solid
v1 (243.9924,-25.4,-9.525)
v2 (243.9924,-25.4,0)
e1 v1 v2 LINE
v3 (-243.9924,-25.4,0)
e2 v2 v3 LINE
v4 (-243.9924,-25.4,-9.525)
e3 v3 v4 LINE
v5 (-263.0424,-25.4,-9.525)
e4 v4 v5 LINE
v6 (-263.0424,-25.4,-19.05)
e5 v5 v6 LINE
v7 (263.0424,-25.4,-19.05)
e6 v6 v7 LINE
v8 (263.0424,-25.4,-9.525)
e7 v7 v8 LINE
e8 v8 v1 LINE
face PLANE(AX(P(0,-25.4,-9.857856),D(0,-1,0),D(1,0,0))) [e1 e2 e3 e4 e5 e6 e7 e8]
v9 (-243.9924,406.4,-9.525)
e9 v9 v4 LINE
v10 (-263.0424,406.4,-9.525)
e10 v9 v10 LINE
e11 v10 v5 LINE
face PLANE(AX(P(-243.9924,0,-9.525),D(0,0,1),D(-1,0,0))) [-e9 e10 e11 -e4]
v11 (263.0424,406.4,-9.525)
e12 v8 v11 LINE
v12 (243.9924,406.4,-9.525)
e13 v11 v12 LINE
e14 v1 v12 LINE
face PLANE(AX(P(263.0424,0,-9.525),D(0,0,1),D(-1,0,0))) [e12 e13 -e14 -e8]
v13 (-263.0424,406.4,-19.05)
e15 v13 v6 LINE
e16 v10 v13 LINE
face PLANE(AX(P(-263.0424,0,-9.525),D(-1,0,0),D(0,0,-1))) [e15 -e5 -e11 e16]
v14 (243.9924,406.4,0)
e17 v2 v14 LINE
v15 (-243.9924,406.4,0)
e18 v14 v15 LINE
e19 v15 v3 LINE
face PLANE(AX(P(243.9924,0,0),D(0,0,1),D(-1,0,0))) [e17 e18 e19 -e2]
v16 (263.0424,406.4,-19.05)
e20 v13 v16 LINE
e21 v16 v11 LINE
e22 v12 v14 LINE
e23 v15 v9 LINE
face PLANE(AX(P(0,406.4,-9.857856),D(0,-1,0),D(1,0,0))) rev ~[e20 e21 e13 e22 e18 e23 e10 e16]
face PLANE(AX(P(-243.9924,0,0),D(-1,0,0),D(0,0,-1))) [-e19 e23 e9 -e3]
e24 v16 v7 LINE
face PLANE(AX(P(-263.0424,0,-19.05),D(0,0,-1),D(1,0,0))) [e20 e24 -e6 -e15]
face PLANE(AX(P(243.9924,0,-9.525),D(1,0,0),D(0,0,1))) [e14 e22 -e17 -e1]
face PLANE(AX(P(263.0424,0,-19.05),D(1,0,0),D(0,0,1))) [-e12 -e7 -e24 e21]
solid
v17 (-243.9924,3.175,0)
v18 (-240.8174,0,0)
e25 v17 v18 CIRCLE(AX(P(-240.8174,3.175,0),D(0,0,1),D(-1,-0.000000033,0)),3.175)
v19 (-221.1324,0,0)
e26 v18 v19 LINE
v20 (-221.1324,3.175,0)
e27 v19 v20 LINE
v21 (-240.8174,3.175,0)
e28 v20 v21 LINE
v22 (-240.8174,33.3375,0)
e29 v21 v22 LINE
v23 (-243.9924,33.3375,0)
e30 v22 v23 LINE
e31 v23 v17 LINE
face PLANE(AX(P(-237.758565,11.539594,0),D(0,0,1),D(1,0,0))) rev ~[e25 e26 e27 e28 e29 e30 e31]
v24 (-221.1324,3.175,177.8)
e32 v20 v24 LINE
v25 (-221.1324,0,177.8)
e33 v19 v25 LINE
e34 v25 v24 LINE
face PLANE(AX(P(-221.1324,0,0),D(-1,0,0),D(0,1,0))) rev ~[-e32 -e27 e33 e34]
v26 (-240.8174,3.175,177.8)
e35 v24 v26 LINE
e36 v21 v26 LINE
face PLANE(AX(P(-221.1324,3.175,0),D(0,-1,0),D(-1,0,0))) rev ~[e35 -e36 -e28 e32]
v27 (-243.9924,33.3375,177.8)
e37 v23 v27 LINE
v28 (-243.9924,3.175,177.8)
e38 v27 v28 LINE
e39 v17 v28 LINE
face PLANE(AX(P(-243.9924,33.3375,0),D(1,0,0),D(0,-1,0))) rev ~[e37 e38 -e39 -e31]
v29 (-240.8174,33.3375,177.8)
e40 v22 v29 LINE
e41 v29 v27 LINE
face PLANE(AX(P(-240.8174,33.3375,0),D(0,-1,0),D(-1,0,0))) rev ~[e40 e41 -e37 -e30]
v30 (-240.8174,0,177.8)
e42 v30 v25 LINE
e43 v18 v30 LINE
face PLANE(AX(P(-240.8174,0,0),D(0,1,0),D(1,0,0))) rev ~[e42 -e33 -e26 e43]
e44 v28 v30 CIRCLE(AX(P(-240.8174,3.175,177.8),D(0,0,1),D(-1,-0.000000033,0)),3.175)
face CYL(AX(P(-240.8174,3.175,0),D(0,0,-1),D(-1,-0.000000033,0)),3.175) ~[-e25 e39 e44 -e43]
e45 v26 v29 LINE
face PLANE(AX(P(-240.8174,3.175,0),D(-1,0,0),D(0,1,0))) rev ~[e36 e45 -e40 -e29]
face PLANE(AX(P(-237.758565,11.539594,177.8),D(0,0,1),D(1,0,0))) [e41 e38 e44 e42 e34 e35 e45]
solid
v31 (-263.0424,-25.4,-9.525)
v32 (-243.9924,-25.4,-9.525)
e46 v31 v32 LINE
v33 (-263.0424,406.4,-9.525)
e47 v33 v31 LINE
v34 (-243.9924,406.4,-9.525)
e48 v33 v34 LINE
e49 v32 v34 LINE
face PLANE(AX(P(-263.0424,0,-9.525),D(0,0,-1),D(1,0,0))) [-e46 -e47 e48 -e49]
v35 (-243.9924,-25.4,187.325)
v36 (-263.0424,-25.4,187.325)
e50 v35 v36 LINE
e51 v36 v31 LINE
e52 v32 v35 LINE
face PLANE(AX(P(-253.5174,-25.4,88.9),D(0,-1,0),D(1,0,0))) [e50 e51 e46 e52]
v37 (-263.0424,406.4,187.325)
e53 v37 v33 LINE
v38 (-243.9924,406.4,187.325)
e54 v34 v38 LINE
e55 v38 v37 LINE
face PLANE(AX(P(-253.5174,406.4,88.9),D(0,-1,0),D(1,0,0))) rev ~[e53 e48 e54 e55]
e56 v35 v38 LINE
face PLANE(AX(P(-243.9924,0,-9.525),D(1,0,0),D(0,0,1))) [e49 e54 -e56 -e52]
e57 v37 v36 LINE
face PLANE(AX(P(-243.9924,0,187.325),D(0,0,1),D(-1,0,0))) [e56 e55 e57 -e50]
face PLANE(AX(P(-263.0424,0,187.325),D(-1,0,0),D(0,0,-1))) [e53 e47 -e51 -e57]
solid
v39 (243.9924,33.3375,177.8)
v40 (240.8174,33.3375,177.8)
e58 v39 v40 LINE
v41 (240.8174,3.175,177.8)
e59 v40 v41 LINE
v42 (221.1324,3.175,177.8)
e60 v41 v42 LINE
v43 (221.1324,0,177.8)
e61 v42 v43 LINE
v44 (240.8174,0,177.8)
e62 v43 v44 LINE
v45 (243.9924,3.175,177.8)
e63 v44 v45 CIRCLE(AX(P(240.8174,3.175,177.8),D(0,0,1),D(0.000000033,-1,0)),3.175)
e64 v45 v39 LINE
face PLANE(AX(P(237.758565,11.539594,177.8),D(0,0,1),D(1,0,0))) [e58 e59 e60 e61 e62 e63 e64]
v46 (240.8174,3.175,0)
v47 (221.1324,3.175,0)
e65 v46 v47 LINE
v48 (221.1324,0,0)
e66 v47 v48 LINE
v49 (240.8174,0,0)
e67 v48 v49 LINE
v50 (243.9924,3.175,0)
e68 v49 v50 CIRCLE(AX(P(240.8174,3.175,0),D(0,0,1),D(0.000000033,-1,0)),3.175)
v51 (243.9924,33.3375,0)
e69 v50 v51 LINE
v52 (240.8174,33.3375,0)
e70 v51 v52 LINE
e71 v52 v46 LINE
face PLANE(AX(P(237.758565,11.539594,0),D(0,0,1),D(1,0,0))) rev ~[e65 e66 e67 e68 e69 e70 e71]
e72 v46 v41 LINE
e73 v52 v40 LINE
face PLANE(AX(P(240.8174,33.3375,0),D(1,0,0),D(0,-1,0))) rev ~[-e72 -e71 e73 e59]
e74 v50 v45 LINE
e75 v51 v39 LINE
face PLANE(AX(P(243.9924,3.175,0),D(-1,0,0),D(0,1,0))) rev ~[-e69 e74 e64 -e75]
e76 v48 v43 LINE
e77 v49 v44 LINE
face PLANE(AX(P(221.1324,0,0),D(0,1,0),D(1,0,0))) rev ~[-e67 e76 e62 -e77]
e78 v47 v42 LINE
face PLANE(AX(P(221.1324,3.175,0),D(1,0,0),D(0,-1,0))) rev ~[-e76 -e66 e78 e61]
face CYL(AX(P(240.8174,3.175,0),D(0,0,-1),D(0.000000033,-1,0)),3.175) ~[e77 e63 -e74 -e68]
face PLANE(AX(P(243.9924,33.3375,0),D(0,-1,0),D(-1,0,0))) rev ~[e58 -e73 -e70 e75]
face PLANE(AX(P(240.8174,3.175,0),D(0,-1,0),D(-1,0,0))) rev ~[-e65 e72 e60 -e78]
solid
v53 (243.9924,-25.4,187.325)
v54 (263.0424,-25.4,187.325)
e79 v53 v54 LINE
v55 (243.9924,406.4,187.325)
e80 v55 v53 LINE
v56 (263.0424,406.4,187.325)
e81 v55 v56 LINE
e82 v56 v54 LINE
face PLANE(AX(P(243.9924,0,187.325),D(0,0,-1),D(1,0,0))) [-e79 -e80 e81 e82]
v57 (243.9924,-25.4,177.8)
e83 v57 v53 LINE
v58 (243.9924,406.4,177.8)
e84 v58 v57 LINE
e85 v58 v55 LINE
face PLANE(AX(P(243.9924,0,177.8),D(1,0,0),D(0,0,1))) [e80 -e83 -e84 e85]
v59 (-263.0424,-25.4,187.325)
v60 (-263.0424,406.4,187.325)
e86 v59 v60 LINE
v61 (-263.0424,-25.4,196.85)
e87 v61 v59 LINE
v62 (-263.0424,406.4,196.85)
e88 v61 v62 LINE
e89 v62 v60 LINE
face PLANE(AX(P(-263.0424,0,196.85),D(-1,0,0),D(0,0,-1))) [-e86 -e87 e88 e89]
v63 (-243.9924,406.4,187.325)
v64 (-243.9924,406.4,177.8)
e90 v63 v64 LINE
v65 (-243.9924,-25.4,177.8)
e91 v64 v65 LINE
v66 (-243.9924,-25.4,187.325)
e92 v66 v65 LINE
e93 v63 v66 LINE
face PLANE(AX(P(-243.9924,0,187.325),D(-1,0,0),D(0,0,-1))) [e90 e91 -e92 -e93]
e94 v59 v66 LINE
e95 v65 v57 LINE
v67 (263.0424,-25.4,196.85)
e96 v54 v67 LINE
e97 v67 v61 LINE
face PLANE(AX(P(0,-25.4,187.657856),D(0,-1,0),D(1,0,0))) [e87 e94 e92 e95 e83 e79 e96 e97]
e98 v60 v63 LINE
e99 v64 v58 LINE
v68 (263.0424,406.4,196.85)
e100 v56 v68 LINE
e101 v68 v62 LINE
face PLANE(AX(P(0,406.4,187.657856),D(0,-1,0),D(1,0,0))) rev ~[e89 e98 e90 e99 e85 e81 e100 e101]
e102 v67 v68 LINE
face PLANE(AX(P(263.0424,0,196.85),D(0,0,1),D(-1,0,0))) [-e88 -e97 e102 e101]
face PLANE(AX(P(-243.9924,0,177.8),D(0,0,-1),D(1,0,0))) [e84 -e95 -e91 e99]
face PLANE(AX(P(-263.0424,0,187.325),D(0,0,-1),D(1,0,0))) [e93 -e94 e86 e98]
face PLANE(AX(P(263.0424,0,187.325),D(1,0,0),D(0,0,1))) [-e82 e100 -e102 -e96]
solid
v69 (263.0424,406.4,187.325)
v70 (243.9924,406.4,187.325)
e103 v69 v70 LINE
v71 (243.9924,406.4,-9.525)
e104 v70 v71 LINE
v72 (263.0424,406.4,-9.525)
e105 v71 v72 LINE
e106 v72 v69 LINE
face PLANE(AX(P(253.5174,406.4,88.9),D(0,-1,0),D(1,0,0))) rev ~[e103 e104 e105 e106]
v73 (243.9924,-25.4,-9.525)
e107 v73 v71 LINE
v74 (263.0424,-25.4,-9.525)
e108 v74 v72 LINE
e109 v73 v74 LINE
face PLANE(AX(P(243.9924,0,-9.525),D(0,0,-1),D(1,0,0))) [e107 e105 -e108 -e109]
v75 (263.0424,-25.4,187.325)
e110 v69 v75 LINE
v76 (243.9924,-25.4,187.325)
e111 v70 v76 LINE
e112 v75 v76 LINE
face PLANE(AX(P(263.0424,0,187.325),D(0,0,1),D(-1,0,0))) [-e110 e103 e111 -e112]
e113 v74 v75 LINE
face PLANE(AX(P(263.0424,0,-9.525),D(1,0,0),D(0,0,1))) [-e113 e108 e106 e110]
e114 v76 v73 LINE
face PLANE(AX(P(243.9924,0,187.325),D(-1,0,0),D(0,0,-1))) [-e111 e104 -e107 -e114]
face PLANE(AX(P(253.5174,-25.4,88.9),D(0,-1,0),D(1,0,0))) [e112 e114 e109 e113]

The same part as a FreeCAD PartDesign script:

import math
import FreeCAD as App
import Part
import Sketcher
from FreeCAD import Vector
Q = App.Units.Quantity


def add_polygon(sketch, points):
    """Adds a closed chain of lines whose ends are joined by coincident constraints."""
    first, n = sketch.GeometryCount, len(points)
    for a, b in zip(points, points[1:] + points[:1]):
        sketch.addGeometry(Part.LineSegment(App.Vector(*a, 0), App.Vector(*b, 0)), False)
    for i in range(n):
        sketch.addConstraint(Sketcher.Constraint("Coincident", first + i, 2, first + (i + 1) % n, 1))

doc = App.newDocument("Part")
body = doc.addObject("PartDesign::Body", "Body")
body.AllowCompound = True

sketch1 = body.newObject("Sketcher::SketchObject", "Sketch")
sketch1.AttachmentSupport = (doc.getObject("XY_Plane"), [""])
sketch1.MapMode = "FlatFace"
sketch1.addGeometry([
    Part.LineSegment(Vector(-244, 33.3, 0), Vector(-244, 3.2, 0)),
    Part.ArcOfCircle(Part.Circle(Vector(-240.8, 3.2, 0), Vector(0, 0, 1), 3.2), math.radians(-180), math.radians(-90)),
    Part.LineSegment(Vector(-240.8, 0, 0), Vector(-221.1, 0, 0)),
    Part.LineSegment(Vector(-221.1, 0, 0), Vector(-221.1, 3.2, 0)),
    Part.LineSegment(Vector(-221.1, 3.2, 0), Vector(-240.8, 3.2, 0)),
    Part.LineSegment(Vector(-240.8, 3.2, 0), Vector(-240.8, 33.3, 0)),
    Part.LineSegment(Vector(-240.8, 33.3, 0), Vector(-244, 33.3, 0)),
    Part.ArcOfCircle(Part.Circle(Vector(240.8, 3.2, 0), Vector(0, 0, 1), 3.2), math.radians(-90), math.radians(0)),
    Part.LineSegment(Vector(244, 3.2, 0), Vector(244, 33.3, 0)),
    Part.LineSegment(Vector(244, 33.3, 0), Vector(240.8, 33.3, 0)),
    Part.LineSegment(Vector(240.8, 33.3, 0), Vector(240.8, 3.2, 0)),
    Part.LineSegment(Vector(240.8, 3.2, 0), Vector(221.1, 3.2, 0)),
    Part.LineSegment(Vector(221.1, 3.2, 0), Vector(221.1, 0, 0)),
    Part.LineSegment(Vector(221.1, 0, 0), Vector(240.8, 0, 0)),
], False)
sketch1.addConstraint([
    Sketcher.Constraint("Tangent", 0, 2, 1, 1),
    Sketcher.Constraint("Tangent", 1, 2, 2, 1),
    Sketcher.Constraint("Coincident", 2, 2, 3, 1),
    Sketcher.Constraint("Coincident", 3, 2, 4, 1),
    Sketcher.Constraint("Coincident", 4, 2, 5, 1),
    Sketcher.Constraint("Coincident", 5, 2, 6, 1),
    Sketcher.Constraint("Coincident", 6, 2, 0, 1),
    Sketcher.Constraint("Tangent", 7, 2, 8, 1),
    Sketcher.Constraint("Coincident", 8, 2, 9, 1),
    Sketcher.Constraint("Coincident", 9, 2, 10, 1),
    Sketcher.Constraint("Coincident", 10, 2, 11, 1),
    Sketcher.Constraint("Coincident", 11, 2, 12, 1),
    Sketcher.Constraint("Coincident", 12, 2, 13, 1),
    Sketcher.Constraint("Tangent", 13, 2, 7, 1),
    Sketcher.Constraint("Vertical", 0),
    Sketcher.Constraint("Horizontal", 2),
    Sketcher.Constraint("Vertical", 3),
    Sketcher.Constraint("Horizontal", 4),
    Sketcher.Constraint("Vertical", 5),
    Sketcher.Constraint("Horizontal", 6),
    Sketcher.Constraint("Vertical", 8),
    Sketcher.Constraint("Horizontal", 9),
    Sketcher.Constraint("Vertical", 10),
    Sketcher.Constraint("Horizontal", 11),
    Sketcher.Constraint("Vertical", 12),
    Sketcher.Constraint("Horizontal", 13),
    Sketcher.Constraint("Coincident", 4, 2, 1, 3),
    Sketcher.Constraint("Coincident", 10, 2, 7, 3),
    Sketcher.Constraint("Equal", 1, 7),
    Sketcher.Constraint("Symmetric", 2, 2, 12, 2, -1, 1),
    Sketcher.Constraint("Symmetric", 1, 3, 7, 3, -2),
    Sketcher.Constraint("Horizontal", 6, 2, 8, 2),
    Sketcher.Constraint("Radius", 1, Q("0.125 in")),
    Sketcher.Constraint("DistanceX", 0, 2, 2, 2, Q("0.9 in")),
    Sketcher.Constraint("DistanceY", 0, 2, 0, 1, Q("1.1875 in")),
    Sketcher.Constraint("DistanceX", 1, 3, -1, 1, Q("9.481 in")),
])
pad1 = body.newObject("PartDesign::Pad", "Pad")
pad1.Profile = sketch1
pad1.Length = Q("7 in")
body2 = doc.addObject("PartDesign::Body", "Body001")
body2.AllowCompound = True

sketch2 = body2.newObject("Sketcher::SketchObject", "Sketch001")
sketch2.AttachmentSupport = (doc.getObject("XZ_Plane001"), [""])
sketch2.MapMode = "FlatFace"
add_polygon(sketch2, [(-244, 187), (-263, 187), (-263, -10), (-244, -10)])
add_polygon(sketch2, [(263, -10), (263, 187), (244, 187), (244, -10)])
sketch2.addConstraint([
    Sketcher.Constraint("Horizontal", 0),
    Sketcher.Constraint("Vertical", 1),
    Sketcher.Constraint("Horizontal", 2),
    Sketcher.Constraint("Vertical", 3),
    Sketcher.Constraint("Vertical", 4),
    Sketcher.Constraint("Horizontal", 5),
    Sketcher.Constraint("Vertical", 6),
    Sketcher.Constraint("Horizontal", 7),
    Sketcher.Constraint("Symmetric", 0, 2, 4, 2, -2),
    Sketcher.Constraint("Symmetric", 2, 2, 6, 2, -2),
    Sketcher.Constraint("DistanceX", 0, 2, 0, 1, Q("0.75 in")),
    Sketcher.Constraint("DistanceY", 1, 2, 1, 1, Q("7.75 in")),
    Sketcher.Constraint("DistanceX", 0, 2, -1, 1, Q("10.356 in")),
    Sketcher.Constraint("DistanceY", -1, 1, 0, 2, Q("7.375 in")),
])
pad2 = body2.newObject("PartDesign::Pad", "Pad001")
pad2.Profile = sketch2
pad2.Type = "TwoLengths"
pad2.Length = Q("1 in")
pad2.Length2 = Q("16 in")
body3 = doc.addObject("PartDesign::Body", "Body002")
body3.AllowCompound = True

sketch3 = body3.newObject("Sketcher::SketchObject", "Sketch002")
sketch3.AttachmentSupport = (doc.getObject("XZ_Plane002"), [""])
sketch3.MapMode = "FlatFace"
add_polygon(sketch3, [(244, 0), (-244, 0), (-244, -10), (-263, -10), (-263, -19), (263, -19), (263, -10), (244, -10)])
add_polygon(sketch3, [(-263, 187), (-244, 187), (-244, 178), (244, 178), (244, 187), (263, 187), (263, 197), (-263, 197)])
sketch3.addConstraint([
    Sketcher.Constraint("Horizontal", 0),
    Sketcher.Constraint("Vertical", 1),
    Sketcher.Constraint("Horizontal", 2),
    Sketcher.Constraint("Vertical", 3),
    Sketcher.Constraint("Horizontal", 4),
    Sketcher.Constraint("Vertical", 5),
    Sketcher.Constraint("Horizontal", 6),
    Sketcher.Constraint("Vertical", 7),
    Sketcher.Constraint("Horizontal", 8),
    Sketcher.Constraint("Vertical", 9),
    Sketcher.Constraint("Horizontal", 10),
    Sketcher.Constraint("Vertical", 11),
    Sketcher.Constraint("Horizontal", 12),
    Sketcher.Constraint("Vertical", 13),
    Sketcher.Constraint("Horizontal", 14),
    Sketcher.Constraint("Vertical", 15),
    Sketcher.Constraint("Symmetric", 0, 2, 7, 2, -1, 1),
    Sketcher.Constraint("Symmetric", 2, 2, 5, 2, -2),
    Sketcher.Constraint("Symmetric", 8, 2, 11, 2, -2),
    Sketcher.Constraint("Vertical", 1, 2, 8, 2),
    Sketcher.Constraint("Vertical", 5, 2, 12, 2),
    Sketcher.Constraint("Vertical", 3, 2, 14, 2),
    Sketcher.Constraint("Equal", 1, 3),
    Sketcher.Constraint("Equal", 7, 9),
    Sketcher.Constraint("Equal", 11, 13),
    Sketcher.Constraint("DistanceY", -1, 1, 9, 2, Q("7 in")),
    Sketcher.Constraint("DistanceX", 2, 2, 2, 1, Q("0.75 in")),
    Sketcher.Constraint("DistanceX", 0, 2, 0, 1, Q("19.212 in")),
    Sketcher.Constraint("DistanceY", 1, 2, 1, 1, Q("0.375 in")),
])
pad3 = body3.newObject("PartDesign::Pad", "Pad002")
pad3.Profile = sketch3
pad3.Type = "TwoLengths"
pad3.Length = Q("1 in")
pad3.Length2 = Q("16 in")

doc.recompute()
